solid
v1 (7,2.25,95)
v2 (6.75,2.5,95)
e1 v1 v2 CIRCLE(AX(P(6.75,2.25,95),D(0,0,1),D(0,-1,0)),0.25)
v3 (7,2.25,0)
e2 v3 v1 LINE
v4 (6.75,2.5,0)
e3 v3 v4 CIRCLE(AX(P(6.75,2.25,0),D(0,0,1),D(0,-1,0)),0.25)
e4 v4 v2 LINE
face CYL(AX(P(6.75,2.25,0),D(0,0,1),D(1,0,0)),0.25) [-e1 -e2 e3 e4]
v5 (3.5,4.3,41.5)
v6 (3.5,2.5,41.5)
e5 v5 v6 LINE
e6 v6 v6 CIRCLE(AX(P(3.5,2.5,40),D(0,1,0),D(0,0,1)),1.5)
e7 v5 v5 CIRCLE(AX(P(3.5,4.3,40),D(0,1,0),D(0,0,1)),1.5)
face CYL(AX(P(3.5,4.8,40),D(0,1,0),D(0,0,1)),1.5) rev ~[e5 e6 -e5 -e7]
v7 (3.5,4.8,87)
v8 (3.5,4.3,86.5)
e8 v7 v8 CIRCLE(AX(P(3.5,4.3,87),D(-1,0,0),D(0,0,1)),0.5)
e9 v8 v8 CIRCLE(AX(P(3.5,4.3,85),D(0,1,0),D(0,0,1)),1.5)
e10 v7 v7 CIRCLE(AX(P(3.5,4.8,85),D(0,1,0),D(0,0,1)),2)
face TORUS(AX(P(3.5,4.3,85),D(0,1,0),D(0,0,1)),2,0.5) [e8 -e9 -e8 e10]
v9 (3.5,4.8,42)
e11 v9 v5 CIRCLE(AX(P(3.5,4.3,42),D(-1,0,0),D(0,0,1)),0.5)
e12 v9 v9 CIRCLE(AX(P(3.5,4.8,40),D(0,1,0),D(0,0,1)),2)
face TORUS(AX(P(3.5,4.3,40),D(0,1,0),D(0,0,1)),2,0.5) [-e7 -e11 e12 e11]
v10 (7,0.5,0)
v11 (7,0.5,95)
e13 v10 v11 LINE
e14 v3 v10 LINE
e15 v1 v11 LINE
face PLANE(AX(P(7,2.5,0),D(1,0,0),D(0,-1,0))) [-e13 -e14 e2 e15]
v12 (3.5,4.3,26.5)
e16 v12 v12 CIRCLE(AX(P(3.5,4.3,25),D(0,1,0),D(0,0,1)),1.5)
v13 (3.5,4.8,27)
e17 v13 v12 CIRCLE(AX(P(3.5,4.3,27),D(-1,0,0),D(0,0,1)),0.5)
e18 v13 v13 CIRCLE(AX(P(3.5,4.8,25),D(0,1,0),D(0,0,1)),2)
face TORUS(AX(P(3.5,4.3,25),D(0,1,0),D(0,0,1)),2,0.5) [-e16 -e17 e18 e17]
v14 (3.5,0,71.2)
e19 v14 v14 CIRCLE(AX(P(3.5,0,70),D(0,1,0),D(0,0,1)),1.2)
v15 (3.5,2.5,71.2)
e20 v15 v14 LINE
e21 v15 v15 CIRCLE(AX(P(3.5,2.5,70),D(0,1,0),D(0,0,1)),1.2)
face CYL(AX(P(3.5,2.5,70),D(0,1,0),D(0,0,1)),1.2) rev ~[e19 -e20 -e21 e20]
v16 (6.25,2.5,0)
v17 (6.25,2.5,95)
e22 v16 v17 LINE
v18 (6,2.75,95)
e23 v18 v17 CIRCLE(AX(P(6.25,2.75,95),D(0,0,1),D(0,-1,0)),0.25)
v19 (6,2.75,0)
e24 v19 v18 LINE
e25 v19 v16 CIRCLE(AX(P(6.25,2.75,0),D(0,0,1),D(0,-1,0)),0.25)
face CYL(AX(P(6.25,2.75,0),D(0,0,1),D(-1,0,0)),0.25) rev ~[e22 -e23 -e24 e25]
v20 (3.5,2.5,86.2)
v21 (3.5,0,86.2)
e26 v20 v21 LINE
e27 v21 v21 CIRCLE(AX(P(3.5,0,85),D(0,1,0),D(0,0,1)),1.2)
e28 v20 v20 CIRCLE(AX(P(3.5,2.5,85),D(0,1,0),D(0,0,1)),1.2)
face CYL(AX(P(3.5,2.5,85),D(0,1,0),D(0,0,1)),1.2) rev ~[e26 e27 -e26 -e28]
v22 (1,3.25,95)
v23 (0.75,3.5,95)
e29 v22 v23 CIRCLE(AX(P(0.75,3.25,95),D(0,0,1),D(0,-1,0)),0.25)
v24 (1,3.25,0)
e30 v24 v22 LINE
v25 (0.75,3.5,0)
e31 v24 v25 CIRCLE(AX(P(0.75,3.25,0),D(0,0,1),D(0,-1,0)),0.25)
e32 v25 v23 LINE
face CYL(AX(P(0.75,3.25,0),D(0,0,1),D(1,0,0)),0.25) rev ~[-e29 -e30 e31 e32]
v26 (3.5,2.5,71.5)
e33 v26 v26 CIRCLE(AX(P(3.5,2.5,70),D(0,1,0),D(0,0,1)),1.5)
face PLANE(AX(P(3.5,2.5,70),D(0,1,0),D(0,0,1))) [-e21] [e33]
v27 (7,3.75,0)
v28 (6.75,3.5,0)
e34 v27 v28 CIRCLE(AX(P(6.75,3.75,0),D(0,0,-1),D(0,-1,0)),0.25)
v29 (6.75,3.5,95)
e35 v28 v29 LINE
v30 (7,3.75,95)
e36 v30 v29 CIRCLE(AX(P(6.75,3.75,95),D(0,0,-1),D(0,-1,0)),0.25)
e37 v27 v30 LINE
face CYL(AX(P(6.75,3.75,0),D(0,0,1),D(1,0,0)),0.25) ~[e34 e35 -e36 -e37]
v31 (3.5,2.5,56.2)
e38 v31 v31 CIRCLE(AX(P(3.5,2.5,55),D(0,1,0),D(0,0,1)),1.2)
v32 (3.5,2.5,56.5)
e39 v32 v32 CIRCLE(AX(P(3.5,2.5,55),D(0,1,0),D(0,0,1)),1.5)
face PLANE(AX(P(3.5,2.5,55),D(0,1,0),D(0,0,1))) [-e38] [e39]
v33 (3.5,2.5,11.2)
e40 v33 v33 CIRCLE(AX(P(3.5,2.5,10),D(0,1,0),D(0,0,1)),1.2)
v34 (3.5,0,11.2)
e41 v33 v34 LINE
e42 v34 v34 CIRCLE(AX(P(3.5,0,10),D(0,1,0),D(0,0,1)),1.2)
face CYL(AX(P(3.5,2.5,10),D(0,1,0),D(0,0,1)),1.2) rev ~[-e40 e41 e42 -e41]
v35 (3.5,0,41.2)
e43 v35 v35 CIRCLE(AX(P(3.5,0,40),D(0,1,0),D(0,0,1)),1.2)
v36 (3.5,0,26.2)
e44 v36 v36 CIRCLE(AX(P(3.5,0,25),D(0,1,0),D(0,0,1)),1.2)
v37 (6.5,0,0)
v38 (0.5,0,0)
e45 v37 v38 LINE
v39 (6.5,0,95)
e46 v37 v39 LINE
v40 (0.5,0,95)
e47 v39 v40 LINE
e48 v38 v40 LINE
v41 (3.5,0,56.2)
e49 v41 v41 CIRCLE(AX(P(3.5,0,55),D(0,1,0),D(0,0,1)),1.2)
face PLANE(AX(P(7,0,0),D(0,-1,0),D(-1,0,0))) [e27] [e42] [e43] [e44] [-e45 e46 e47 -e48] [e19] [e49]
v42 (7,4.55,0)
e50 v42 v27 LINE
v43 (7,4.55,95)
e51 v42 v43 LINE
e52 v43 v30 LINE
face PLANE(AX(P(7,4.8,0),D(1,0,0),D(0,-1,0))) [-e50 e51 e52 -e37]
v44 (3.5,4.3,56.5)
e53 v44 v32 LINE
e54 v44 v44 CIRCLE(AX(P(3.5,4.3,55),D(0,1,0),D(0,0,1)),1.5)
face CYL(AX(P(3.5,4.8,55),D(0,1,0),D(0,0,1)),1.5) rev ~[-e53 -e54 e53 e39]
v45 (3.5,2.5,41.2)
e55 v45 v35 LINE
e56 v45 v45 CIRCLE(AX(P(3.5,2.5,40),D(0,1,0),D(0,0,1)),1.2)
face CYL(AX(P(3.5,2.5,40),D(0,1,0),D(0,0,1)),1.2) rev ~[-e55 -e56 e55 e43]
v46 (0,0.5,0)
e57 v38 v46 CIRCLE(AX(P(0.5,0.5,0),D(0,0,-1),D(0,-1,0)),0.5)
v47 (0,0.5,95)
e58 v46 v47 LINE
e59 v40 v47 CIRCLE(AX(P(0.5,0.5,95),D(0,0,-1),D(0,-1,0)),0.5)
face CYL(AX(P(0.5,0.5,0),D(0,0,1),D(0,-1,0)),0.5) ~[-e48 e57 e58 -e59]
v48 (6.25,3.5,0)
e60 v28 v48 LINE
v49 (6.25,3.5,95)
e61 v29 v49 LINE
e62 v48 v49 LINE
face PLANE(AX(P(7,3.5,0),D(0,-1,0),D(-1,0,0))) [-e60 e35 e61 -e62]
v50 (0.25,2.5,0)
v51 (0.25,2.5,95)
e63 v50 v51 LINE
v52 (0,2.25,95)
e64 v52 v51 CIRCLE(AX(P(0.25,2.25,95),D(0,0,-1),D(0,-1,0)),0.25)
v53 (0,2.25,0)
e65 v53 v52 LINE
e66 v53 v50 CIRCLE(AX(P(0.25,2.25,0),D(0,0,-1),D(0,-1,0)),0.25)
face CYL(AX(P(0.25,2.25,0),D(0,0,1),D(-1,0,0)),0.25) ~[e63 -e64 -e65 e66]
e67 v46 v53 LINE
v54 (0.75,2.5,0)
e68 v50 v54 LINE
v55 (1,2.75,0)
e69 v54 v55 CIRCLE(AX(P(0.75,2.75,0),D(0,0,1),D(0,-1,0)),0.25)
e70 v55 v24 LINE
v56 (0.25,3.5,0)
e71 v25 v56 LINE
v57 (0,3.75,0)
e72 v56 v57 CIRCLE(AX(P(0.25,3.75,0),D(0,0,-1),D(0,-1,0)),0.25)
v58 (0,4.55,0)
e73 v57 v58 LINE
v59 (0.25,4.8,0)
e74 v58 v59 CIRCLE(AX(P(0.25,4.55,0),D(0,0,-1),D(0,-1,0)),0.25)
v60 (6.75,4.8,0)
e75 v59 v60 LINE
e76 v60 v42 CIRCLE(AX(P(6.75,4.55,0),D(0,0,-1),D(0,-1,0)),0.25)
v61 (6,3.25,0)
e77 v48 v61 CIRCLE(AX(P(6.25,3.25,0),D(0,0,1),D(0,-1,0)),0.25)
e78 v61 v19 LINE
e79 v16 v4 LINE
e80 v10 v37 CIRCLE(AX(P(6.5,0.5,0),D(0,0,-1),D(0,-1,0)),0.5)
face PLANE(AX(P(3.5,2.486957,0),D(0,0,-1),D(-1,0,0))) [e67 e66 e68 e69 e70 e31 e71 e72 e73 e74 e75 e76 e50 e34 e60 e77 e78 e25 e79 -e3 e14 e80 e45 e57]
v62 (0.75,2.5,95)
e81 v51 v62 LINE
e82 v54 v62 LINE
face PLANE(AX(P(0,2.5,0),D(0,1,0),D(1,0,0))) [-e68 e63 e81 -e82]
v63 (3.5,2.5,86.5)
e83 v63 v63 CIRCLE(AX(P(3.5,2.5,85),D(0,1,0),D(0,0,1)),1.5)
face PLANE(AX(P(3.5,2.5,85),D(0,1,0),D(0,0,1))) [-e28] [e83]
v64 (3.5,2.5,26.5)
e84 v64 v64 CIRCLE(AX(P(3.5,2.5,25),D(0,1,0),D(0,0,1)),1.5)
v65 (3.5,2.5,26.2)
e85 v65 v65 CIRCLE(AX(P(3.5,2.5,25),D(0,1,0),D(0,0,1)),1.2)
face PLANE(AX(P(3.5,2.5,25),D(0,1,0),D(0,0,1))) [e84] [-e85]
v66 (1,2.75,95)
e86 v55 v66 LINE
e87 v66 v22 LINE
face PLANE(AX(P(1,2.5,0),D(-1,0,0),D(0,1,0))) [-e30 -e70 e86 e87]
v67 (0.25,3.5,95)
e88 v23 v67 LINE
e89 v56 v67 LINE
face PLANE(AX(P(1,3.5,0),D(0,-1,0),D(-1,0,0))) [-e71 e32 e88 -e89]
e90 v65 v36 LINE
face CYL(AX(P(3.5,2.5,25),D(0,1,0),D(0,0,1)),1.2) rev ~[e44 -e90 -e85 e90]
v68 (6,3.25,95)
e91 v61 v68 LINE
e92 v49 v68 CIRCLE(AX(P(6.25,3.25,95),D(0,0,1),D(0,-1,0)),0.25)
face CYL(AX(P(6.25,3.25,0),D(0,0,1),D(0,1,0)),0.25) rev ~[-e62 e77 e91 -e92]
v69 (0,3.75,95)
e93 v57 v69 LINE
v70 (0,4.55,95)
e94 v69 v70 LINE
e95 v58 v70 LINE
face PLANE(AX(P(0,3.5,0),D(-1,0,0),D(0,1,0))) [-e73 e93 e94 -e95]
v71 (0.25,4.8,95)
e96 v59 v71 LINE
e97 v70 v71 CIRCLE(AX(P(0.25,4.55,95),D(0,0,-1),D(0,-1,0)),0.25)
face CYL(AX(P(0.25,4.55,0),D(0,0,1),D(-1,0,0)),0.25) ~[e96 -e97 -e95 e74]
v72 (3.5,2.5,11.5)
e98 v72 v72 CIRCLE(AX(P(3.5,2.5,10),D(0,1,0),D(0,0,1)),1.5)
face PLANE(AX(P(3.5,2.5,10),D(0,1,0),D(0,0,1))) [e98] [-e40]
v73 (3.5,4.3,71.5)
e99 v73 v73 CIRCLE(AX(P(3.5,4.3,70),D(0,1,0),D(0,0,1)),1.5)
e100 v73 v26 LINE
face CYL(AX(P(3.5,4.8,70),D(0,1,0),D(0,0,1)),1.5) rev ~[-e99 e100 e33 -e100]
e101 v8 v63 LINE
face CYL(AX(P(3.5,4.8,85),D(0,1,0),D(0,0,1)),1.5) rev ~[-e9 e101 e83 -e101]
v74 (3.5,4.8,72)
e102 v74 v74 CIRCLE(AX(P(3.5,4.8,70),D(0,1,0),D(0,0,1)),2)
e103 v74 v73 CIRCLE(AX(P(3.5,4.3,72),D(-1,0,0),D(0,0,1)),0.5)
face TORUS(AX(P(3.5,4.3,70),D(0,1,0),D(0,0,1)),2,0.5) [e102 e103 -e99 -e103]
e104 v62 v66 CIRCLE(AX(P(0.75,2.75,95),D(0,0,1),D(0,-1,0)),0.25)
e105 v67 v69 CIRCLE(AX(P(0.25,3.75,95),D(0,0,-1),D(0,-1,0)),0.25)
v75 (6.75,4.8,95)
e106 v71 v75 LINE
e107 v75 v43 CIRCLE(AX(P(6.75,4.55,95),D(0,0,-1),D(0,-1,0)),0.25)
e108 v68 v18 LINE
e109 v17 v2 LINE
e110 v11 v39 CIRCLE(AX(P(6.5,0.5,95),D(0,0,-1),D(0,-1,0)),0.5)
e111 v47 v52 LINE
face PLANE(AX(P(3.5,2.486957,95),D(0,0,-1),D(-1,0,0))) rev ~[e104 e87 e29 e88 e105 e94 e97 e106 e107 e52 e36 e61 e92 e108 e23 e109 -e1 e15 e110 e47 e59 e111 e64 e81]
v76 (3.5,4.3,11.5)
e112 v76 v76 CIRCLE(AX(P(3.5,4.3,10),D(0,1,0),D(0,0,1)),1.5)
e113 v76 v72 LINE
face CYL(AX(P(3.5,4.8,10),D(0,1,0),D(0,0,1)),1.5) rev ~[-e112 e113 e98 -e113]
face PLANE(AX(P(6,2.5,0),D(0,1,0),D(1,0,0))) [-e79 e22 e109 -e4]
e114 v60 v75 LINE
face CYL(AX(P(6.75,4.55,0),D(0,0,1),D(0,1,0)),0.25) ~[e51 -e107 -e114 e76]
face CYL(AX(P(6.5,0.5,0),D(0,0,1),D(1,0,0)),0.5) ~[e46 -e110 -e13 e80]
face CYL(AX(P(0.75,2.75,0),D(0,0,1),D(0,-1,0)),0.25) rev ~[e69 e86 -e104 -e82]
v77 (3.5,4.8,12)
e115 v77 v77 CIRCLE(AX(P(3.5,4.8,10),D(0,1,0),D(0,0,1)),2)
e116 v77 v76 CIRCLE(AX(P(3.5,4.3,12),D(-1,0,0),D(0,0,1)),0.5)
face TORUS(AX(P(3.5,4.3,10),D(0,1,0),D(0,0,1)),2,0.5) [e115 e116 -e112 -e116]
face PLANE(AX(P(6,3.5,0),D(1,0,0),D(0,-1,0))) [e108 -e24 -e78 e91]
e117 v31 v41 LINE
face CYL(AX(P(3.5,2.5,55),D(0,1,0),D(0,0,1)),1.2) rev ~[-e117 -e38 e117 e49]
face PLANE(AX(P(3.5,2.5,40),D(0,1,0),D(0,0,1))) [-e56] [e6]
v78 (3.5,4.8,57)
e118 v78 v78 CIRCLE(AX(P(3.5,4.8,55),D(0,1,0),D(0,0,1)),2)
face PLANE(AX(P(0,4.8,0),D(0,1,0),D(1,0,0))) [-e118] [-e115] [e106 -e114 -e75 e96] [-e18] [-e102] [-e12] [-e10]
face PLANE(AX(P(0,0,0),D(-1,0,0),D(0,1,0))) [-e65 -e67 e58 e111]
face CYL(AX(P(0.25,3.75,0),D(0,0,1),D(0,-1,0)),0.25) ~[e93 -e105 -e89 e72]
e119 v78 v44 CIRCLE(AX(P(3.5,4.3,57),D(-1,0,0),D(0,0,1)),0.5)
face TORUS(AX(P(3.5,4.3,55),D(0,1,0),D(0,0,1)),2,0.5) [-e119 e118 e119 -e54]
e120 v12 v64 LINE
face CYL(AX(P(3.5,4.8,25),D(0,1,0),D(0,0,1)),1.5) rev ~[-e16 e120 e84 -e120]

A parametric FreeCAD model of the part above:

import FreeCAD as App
import Part
import Sketcher

V = App.Vector


def edges_at(feature, points):
    """Names of the edges that pass closest to the given points."""
    edges = feature.Shape.Edges
    near = lambda p: min(range(len(edges)), key=lambda i: edges[i].distToShape(Part.Vertex(*p))[0])
    return sorted({f"Edge{near(p) + 1}" for p in points})

doc = App.newDocument("Part")
body = doc.addObject("PartDesign::Body", "Body")

# Sketch on XY plane
sketch1 = body.newObject("Sketcher::SketchObject", "Sketch")
sketch1.AttachmentSupport = (doc.getObject("XY_Plane"), [""])
sketch1.MapMode = "FlatFace"
sketch1.addGeometry(Part.LineSegment(V(7, 0, 0), V(7, 2.5, 0)), False)
sketch1.addGeometry(Part.LineSegment(V(7, 2.5, 0), V(6, 2.5, 0)), False)
sketch1.addGeometry(Part.LineSegment(V(6, 2.5, 0), V(6, 3.5, 0)), False)
sketch1.addGeometry(Part.LineSegment(V(6, 3.5, 0), V(7, 3.5, 0)), False)
sketch1.addGeometry(Part.LineSegment(V(7, 3.5, 0), V(7, 4.8, 0)), False)
sketch1.addGeometry(Part.LineSegment(V(7, 4.8, 0), V(0, 4.8, 0)), False)
sketch1.addGeometry(Part.LineSegment(V(0, 4.8, 0), V(0, 3.5, 0)), False)
sketch1.addGeometry(Part.LineSegment(V(0, 3.5, 0), V(1, 3.5, 0)), False)
sketch1.addGeometry(Part.LineSegment(V(1, 3.5, 0), V(1, 2.5, 0)), False)
sketch1.addGeometry(Part.LineSegment(V(1, 2.5, 0), V(0, 2.5, 0)), False)
sketch1.addGeometry(Part.LineSegment(V(0, 2.5, 0), V(0, 0, 0)), False)
sketch1.addGeometry(Part.LineSegment(V(0, 0, 0), V(7, 0, 0)), False)
sketch1.addConstraint(Sketcher.Constraint("Coincident", 0, 2, 1, 1))
sketch1.addConstraint(Sketcher.Constraint("Coincident", 1, 2, 2, 1))
sketch1.addConstraint(Sketcher.Constraint("Coincident", 2, 2, 3, 1))
sketch1.addConstraint(Sketcher.Constraint("Coincident", 3, 2, 4, 1))
sketch1.addConstraint(Sketcher.Constraint("Coincident", 4, 2, 5, 1))
sketch1.addConstraint(Sketcher.Constraint("Coincident", 5, 2, 6, 1))
sketch1.addConstraint(Sketcher.Constraint("Coincident", 6, 2, 7, 1))
sketch1.addConstraint(Sketcher.Constraint("Coincident", 7, 2, 8, 1))
sketch1.addConstraint(Sketcher.Constraint("Coincident", 8, 2, 9, 1))
sketch1.addConstraint(Sketcher.Constraint("Coincident", 9, 2, 10, 1))
sketch1.addConstraint(Sketcher.Constraint("Coincident", 10, 2, 11, 1))
sketch1.addConstraint(Sketcher.Constraint("Coincident", 11, 2, 0, 1))
sketch1.addConstraint(Sketcher.Constraint("Vertical", 0))
sketch1.addConstraint(Sketcher.Constraint("Horizontal", 1))
sketch1.addConstraint(Sketcher.Constraint("Vertical", 2))
sketch1.addConstraint(Sketcher.Constraint("Horizontal", 3))
sketch1.addConstraint(Sketcher.Constraint("Vertical", 4))
sketch1.addConstraint(Sketcher.Constraint("Horizontal", 5))
sketch1.addConstraint(Sketcher.Constraint("Vertical", 6))
sketch1.addConstraint(Sketcher.Constraint("Horizontal", 7))
sketch1.addConstraint(Sketcher.Constraint("Vertical", 8))
sketch1.addConstraint(Sketcher.Constraint("Horizontal", 9))
sketch1.addConstraint(Sketcher.Constraint("Vertical", 10))
sketch1.addConstraint(Sketcher.Constraint("Horizontal", 11))
sketch1.addConstraint(Sketcher.Constraint("Coincident", 10, 2, -1, 1))
sketch1.addConstraint(Sketcher.Constraint("PointOnObject", 5, 2, -2))
sketch1.addConstraint(Sketcher.Constraint("Horizontal", 3, 2, 6, 2))
sketch1.addConstraint(Sketcher.Constraint("Horizontal", 1, 2, 8, 2))
sketch1.addConstraint(Sketcher.Constraint("Vertical", 0, 2, 3, 2))
sketch1.addConstraint(Sketcher.Constraint("Equal", 3, 7))
sketch1.addConstraint(Sketcher.Constraint("Equal", 9, 2))
sketch1.addConstraint(Sketcher.Constraint("DistanceX", 1, 2, 1, 1, 1.0))
sketch1.addConstraint(Sketcher.Constraint("DistanceX", 5, 2, 5, 1, 7.0))
sketch1.addConstraint(Sketcher.Constraint("DistanceY", 0, 1, 0, 2, 2.5))
sketch1.addConstraint(Sketcher.Constraint("DistanceY", 4, 1, 4, 2, 1.3))
pad1 = body.newObject("PartDesign::Pad", "Pad")
pad1.Profile = sketch1
pad1.Length = 95
doc.recompute()

fillet = body.newObject("PartDesign::Fillet", "Fillet")
fillet.Base = (pad1, edges_at(pad1, [
    (0, 2.5, 47.5),
    (1, 2.5, 47.5),
    (1, 3.5, 47.5),
    (0, 3.5, 47.5),
    (0, 4.8, 47.5),
    (7, 4.8, 47.5),
    (7, 3.5, 47.5),
    (6, 3.5, 47.5),
    (6, 2.5, 47.5),
    (7, 2.5, 47.5),
]))
fillet.Radius = 0.25
doc.recompute()

fillet2 = body.newObject("PartDesign::Fillet", "Fillet001")
fillet2.Base = (fillet, edges_at(fillet, [(7, 0, 47.5), (0, 0, 47.5)]))
fillet2.Radius = 0.5

# Sketch on XZ plane
sketch2 = body.newObject("Sketcher::SketchObject", "Sketch001")
sketch2.AttachmentSupport = (doc.getObject("XZ_Plane"), [""])
sketch2.MapMode = "FlatFace"
sketch2.AttachmentOffset = App.Placement(V(0, 0, -4.8), App.Rotation())
sketch2.addGeometry(Part.Circle(V(3.5, 10, 0), V(0, 0, 1), 1.5), False)
sketch2.addConstraint(Sketcher.Constraint("Diameter", 0, 3.0))
sketch2.addConstraint(Sketcher.Constraint("DistanceY", -1, 1, 0, 3, 10.0))
sketch2.addConstraint(Sketcher.Constraint("DistanceX", -1, 1, 0, 3, 3.5))
pocket1 = body.newObject("PartDesign::Pocket", "Pocket")
pocket1.Profile = sketch2
pocket1.Length = 2.3
pocket1.Reversed = True

# Sketch on XZ plane
sketch3 = body.newObject("Sketcher::SketchObject", "Sketch002")
sketch3.AttachmentSupport = (doc.getObject("XZ_Plane"), [""])
sketch3.MapMode = "FlatFace"
sketch3.AttachmentOffset = App.Placement(V(0, 0, -2.5), App.Rotation())
sketch3.addGeometry(Part.Circle(V(3.5, 10, 0), V(0, 0, 1), 1.2), False)
sketch3.addConstraint(Sketcher.Constraint("Diameter", 0, 2.4))
sketch3.addConstraint(Sketcher.Constraint("DistanceY", -1, 1, 0, 3, 10.0))
sketch3.addConstraint(Sketcher.Constraint("DistanceX", -1, 1, 0, 3, 3.5))
pocket2 = body.newObject("PartDesign::Pocket", "Pocket001")
pocket2.Profile = sketch3
pocket2.Type = "ThroughAll"
pocket2.Reversed = True
doc.recompute()

fillet3 = body.newObject("PartDesign::Fillet", "Fillet002")
fillet3.Base = (pocket2, edges_at(pocket2, [(3.5, 4.8, 8.5)]))
fillet3.Radius = 0.5
doc.recompute()

linearpattern = body.newObject("PartDesign::LinearPattern", "LinearPattern")
linearpattern.Originals = [pocket1, pocket2]
linearpattern.Direction = (doc.getObject("Z_Axis"), [""])
linearpattern.Mode = "offset"
linearpattern.Offset = 15
linearpattern.Occurrences = 6
body.Tip = linearpattern
doc.recompute()

fillet4 = body.newObject("PartDesign::Fillet", "Fillet003")
fillet4.Base = (linearpattern, edges_at(linearpattern, [
    (3.5, 4.8, 23.5),
    (3.5, 4.8, 38.5),
    (3.5, 4.8, 53.5),
    (3.5, 4.8, 68.5),
    (3.5, 4.8, 83.5),
]))
fillet4.Radius = 0.5

doc.recompute()
